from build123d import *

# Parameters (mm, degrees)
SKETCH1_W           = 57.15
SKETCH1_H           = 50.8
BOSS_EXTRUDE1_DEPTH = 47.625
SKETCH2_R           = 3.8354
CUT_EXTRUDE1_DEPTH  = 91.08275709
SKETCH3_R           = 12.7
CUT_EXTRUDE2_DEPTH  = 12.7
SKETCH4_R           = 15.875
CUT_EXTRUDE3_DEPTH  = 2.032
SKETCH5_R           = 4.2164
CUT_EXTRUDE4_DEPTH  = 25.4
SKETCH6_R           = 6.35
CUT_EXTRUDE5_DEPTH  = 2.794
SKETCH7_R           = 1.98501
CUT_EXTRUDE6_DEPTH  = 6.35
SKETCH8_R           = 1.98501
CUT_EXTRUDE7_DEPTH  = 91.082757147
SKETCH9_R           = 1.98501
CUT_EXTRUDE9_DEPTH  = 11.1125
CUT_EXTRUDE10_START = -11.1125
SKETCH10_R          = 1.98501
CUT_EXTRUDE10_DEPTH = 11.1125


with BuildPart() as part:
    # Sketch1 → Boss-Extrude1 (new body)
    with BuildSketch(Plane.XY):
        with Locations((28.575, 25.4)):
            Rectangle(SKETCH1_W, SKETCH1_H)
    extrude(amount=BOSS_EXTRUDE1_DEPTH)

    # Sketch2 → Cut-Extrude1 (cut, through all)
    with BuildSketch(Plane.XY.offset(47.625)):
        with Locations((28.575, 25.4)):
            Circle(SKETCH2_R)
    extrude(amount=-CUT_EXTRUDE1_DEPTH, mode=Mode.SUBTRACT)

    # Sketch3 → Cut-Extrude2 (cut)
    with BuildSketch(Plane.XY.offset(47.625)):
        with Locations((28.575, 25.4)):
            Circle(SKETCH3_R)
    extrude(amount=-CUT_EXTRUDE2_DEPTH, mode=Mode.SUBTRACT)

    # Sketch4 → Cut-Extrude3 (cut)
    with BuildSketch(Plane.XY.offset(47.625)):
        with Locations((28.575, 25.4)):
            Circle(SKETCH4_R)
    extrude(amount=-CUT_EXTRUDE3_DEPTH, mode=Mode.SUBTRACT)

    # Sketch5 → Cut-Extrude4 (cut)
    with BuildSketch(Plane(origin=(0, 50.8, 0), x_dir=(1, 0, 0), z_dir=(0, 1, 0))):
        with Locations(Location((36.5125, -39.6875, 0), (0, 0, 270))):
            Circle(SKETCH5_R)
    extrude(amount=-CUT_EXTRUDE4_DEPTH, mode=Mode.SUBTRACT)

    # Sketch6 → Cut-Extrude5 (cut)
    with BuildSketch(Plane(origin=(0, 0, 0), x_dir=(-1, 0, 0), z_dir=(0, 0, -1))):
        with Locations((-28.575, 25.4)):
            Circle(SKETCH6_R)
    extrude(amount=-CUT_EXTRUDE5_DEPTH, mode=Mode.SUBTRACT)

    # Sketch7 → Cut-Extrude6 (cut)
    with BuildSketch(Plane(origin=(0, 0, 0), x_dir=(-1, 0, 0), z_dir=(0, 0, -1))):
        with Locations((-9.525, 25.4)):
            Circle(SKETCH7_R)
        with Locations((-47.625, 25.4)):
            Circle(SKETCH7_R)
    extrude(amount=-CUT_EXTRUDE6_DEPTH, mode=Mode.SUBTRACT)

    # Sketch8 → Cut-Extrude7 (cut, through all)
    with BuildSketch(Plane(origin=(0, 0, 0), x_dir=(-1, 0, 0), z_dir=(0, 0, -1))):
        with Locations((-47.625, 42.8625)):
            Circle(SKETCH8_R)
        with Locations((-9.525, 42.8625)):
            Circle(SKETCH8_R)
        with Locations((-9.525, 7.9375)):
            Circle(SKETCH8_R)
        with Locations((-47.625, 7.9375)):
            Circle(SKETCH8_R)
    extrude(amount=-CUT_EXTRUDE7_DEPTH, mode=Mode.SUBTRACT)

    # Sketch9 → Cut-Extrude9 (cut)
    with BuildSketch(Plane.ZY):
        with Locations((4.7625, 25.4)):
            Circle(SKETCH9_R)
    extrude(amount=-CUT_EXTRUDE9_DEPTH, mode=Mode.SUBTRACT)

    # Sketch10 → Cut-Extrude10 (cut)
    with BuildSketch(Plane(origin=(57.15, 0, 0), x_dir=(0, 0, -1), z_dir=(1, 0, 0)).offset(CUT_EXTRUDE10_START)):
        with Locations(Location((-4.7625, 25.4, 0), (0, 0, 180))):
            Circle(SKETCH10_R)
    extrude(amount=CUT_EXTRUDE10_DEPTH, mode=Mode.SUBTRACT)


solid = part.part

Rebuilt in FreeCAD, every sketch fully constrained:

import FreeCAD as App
import Part
import Sketcher

V = App.Vector
Q = App.Units.Quantity

doc = App.newDocument("Part")
body = doc.addObject("PartDesign::Body", "Body")

sketch1 = doc.addObject("Sketcher::SketchObject", "Sketch")
body.addObject(sketch1)
sketch1.AttachmentSupport = (doc.XY_Plane, [""])
sketch1.MapMode = "FlatFace"
sketch1.addGeometry(Part.LineSegment(V(0, 50.8, 0), V(0, 0, 0)), False)
sketch1.addGeometry(Part.LineSegment(V(0, 0, 0), V(57.15, 0, 0)), False)
sketch1.addGeometry(Part.LineSegment(V(57.15, 0, 0), V(57.15, 50.8, 0)), False)
sketch1.addGeometry(Part.LineSegment(V(57.15, 50.8, 0), V(0, 50.8, 0)), False)
sketch1.addConstraint(Sketcher.Constraint("Coincident", 0, 2, 1, 1))
sketch1.addConstraint(Sketcher.Constraint("Coincident", 1, 2, 2, 1))
sketch1.addConstraint(Sketcher.Constraint("Coincident", 2, 2, 3, 1))
sketch1.addConstraint(Sketcher.Constraint("Coincident", 3, 2, 0, 1))
sketch1.addConstraint(Sketcher.Constraint("Vertical", 0))
sketch1.addConstraint(Sketcher.Constraint("Horizontal", 1))
sketch1.addConstraint(Sketcher.Constraint("Vertical", 2))
sketch1.addConstraint(Sketcher.Constraint("Horizontal", 3))
sketch1.addConstraint(Sketcher.Constraint("Coincident", 0, 2, -1, 1))
sketch1.addConstraint(Sketcher.Constraint("DistanceY", 0, 2, 0, 1, Q("2 in")))
sketch1.addConstraint(Sketcher.Constraint("DistanceX", 1, 1, 1, 2, Q("2.25 in")))
pad1 = doc.addObject("PartDesign::Pad", "Pad")
body.addObject(pad1)
pad1.Profile = sketch1
pad1.Length = Q("1.875 in")

sketch2 = doc.addObject("Sketcher::SketchObject", "Sketch001")
body.addObject(sketch2)
sketch2.AttachmentSupport = (doc.XY_Plane, [""])
sketch2.MapMode = "FlatFace"
sketch2.AttachmentOffset = App.Placement(V(0, 0, 1.875 * 25.4), App.Rotation())
sketch2.addGeometry(Part.Circle(V(28.575, 25.4, 0), V(0, 0, 1), 3.8354), False)
sketch2.addConstraint(Sketcher.Constraint("Diameter", 0, Q("0.302 in")))
sketch2.addConstraint(Sketcher.Constraint("DistanceY", -1, 1, 0, 3, Q("1 in")))
sketch2.addConstraint(Sketcher.Constraint("DistanceX", -1, 1, 0, 3, Q("1.125 in")))
pocket1 = doc.addObject("PartDesign::Pocket", "Pocket")
body.addObject(pocket1)
pocket1.Profile = sketch2
pocket1.Type = "ThroughAll"

sketch3 = doc.addObject("Sketcher::SketchObject", "Sketch002")
body.addObject(sketch3)
sketch3.AttachmentSupport = (doc.XY_Plane, [""])
sketch3.MapMode = "FlatFace"
sketch3.AttachmentOffset = App.Placement(V(0, 0, 1.875 * 25.4), App.Rotation())
sketch3.addGeometry(Part.Circle(V(28.575, 25.4, 0), V(0, 0, 1), 12.7), False)
sketch3.addConstraint(Sketcher.Constraint("Diameter", 0, Q("1 in")))
sketch3.addConstraint(Sketcher.Constraint("DistanceY", -1, 1, 0, 3, Q("1 in")))
sketch3.addConstraint(Sketcher.Constraint("DistanceX", -1, 1, 0, 3, Q("1.125 in")))
pocket2 = doc.addObject("PartDesign::Pocket", "Pocket001")
body.addObject(pocket2)
pocket2.Profile = sketch3
pocket2.Length = Q("0.5 in")

sketch4 = doc.addObject("Sketcher::SketchObject", "Sketch003")
body.addObject(sketch4)
sketch4.AttachmentSupport = (doc.XY_Plane, [""])
sketch4.MapMode = "FlatFace"
sketch4.AttachmentOffset = App.Placement(V(0, 0, 1.875 * 25.4), App.Rotation())
sketch4.addGeometry(Part.Circle(V(28.575, 25.4, 0), V(0, 0, 1), 15.875), False)
sketch4.addConstraint(Sketcher.Constraint("Diameter", 0, Q("1.25 in")))
sketch4.addConstraint(Sketcher.Constraint("DistanceY", -1, 1, 0, 3, Q("1 in")))
sketch4.addConstraint(Sketcher.Constraint("DistanceX", -1, 1, 0, 3, Q("1.125 in")))
pocket3 = doc.addObject("PartDesign::Pocket", "Pocket002")
body.addObject(pocket3)
pocket3.Profile = sketch4
pocket3.Length = Q("0.08 in")

sketch5 = doc.addObject("Sketcher::SketchObject", "Sketch004")
body.addObject(sketch5)
sketch5.AttachmentSupport = (doc.XZ_Plane, [""])
sketch5.MapMode = "FlatFace"
sketch5.AttachmentOffset = App.Placement(V(0, 0, -2 * 25.4), App.Rotation())
sketch5.addGeometry(Part.Circle(V(36.5125, 39.6875, 0), V(0, 0, 1), 4.2164), False)
sketch5.addConstraint(Sketcher.Constraint("Diameter", 0, Q("0.332 in")))
sketch5.addConstraint(Sketcher.Constraint("DistanceX", -1, 1, 0, 3, Q("1.4375 in")))
sketch5.addConstraint(Sketcher.Constraint("DistanceY", -1, 1, 0, 3, Q("1.5625 in")))
pocket4 = doc.addObject("PartDesign::Pocket", "Pocket003")
body.addObject(pocket4)
pocket4.Profile = sketch5
pocket4.Length = Q("1 in")
pocket4.Reversed = True

sketch6 = doc.addObject("Sketcher::SketchObject", "Sketch005")
body.addObject(sketch6)
sketch6.AttachmentSupport = (doc.XY_Plane, [""])
sketch6.MapMode = "FlatFace"
sketch6.addGeometry(Part.Circle(V(28.575, 25.4, 0), V(0, 0, 1), 6.35), False)
sketch6.addConstraint(Sketcher.Constraint("Diameter", 0, Q("0.5 in")))
sketch6.addConstraint(Sketcher.Constraint("DistanceY", -1, 1, 0, 3, Q("1 in")))
sketch6.addConstraint(Sketcher.Constraint("DistanceX", -1, 1, 0, 3, Q("1.125 in")))
pocket5 = doc.addObject("PartDesign::Pocket", "Pocket004")
body.addObject(pocket5)
pocket5.Profile = sketch6
pocket5.Length = Q("0.11 in")
pocket5.Reversed = True

sketch7 = doc.addObject("Sketcher::SketchObject", "Sketch006")
body.addObject(sketch7)
sketch7.AttachmentSupport = (doc.XY_Plane, [""])
sketch7.MapMode = "FlatFace"
sketch7.addGeometry(Part.Circle(V(9.525, 25.4, 0), V(0, 0, 1), 1.98501), False)
sketch7.addGeometry(Part.Circle(V(47.625, 25.4, 0), V(0, 0, 1), 1.98501), False)
sketch7.addConstraint(Sketcher.Constraint("Equal", 0, 1))
sketch7.addConstraint(Sketcher.Constraint("Horizontal", 0, 3, 1, 3))
sketch7.addConstraint(Sketcher.Constraint("DistanceY", -1, 1, 0, 3, Q("1 in")))
sketch7.addConstraint(Sketcher.Constraint("Diameter", 0, Q("0.1563 in")))
sketch7.addConstraint(Sketcher.Constraint("DistanceX", 0, 3, 1, 3, Q("1.5 in")))
sketch7.addConstraint(Sketcher.Constraint("DistanceX", -1, 1, 0, 3, Q("0.375 in")))
pocket6 = doc.addObject("PartDesign::Pocket", "Pocket005")
body.addObject(pocket6)
pocket6.Profile = sketch7
pocket6.Length = Q("0.25 in")
pocket6.Reversed = True

sketch8 = doc.addObject("Sketcher::SketchObject", "Sketch007")
body.addObject(sketch8)
sketch8.AttachmentSupport = (doc.XY_Plane, [""])
sketch8.MapMode = "FlatFace"
sketch8.addGeometry(Part.Circle(V(47.625, 42.8625, 0), V(0, 0, 1), 1.98501), False)
sketch8.addGeometry(Part.Circle(V(9.525, 42.8625, 0), V(0, 0, 1), 1.98501), False)
sketch8.addGeometry(Part.Circle(V(9.525, 7.9375, 0), V(0, 0, 1), 1.98501), False)
sketch8.addGeometry(Part.Circle(V(47.625, 7.9375, 0), V(0, 0, 1), 1.98501), False)
sketch8.addConstraint(Sketcher.Constraint("Equal", 0, 1))
sketch8.addConstraint(Sketcher.Constraint("Equal", 1, 2))
sketch8.addConstraint(Sketcher.Constraint("Equal", 2, 3))
sketch8.addConstraint(Sketcher.Constraint("Horizontal", 0, 3, 1, 3))
sketch8.addConstraint(Sketcher.Constraint("Horizontal", 2, 3, 3, 3))
sketch8.addConstraint(Sketcher.Constraint("Vertical", 1, 3, 2, 3))
sketch8.addConstraint(Sketcher.Constraint("Vertical", 0, 3, 3, 3))
sketch8.addConstraint(Sketcher.Constraint("Diameter", 0, Q("0.1563 in")))
sketch8.addConstraint(Sketcher.Constraint("DistanceX", 1, 3, 0, 3, Q("1.5 in")))
sketch8.addConstraint(Sketcher.Constraint("DistanceX", -1, 1, 0, 3, Q("1.875 in")))
sketch8.addConstraint(Sketcher.Constraint("DistanceY", -1, 1, 0, 3, Q("1.6875 in")))
sketch8.addConstraint(Sketcher.Constraint("DistanceY", -1, 1, 2, 3, Q("0.3125 in")))
pocket7 = doc.addObject("PartDesign::Pocket", "Pocket006")
body.addObject(pocket7)
pocket7.Profile = sketch8
pocket7.Type = "ThroughAll"
pocket7.Reversed = True

sketch9 = doc.addObject("Sketcher::SketchObject", "Sketch008")
body.addObject(sketch9)
sketch9.AttachmentSupport = (doc.YZ_Plane, [""])
sketch9.MapMode = "FlatFace"
sketch9.addGeometry(Part.Circle(V(25.4, 4.7625, 0), V(0, 0, 1), 1.98501), False)
sketch9.addConstraint(Sketcher.Constraint("DistanceX", -1, 1, 0, 3, Q("1 in")))
sketch9.addConstraint(Sketcher.Constraint("Diameter", 0, Q("0.1563 in")))
sketch9.addConstraint(Sketcher.Constraint("DistanceY", -1, 1, 0, 3, Q("0.1875 in")))
pocket8 = doc.addObject("PartDesign::Pocket", "Pocket007")
body.addObject(pocket8)
pocket8.Profile = sketch9
pocket8.Length = Q("0.4375 in")
pocket8.Reversed = True

sketch10 = doc.addObject("Sketcher::SketchObject", "Sketch009")
body.addObject(sketch10)
sketch10.AttachmentSupport = (doc.YZ_Plane, [""])
sketch10.MapMode = "FlatFace"
sketch10.AttachmentOffset = App.Placement(V(0, 0, 1.8125 * 25.4), App.Rotation())
sketch10.addGeometry(Part.Circle(V(25.4, 4.7625, 0), V(0, 0, 1), 1.98501), False)
sketch10.addConstraint(Sketcher.Constraint("DistanceX", -1, 1, 0, 3, Q("1 in")))
sketch10.addConstraint(Sketcher.Constraint("Diameter", 0, Q("0.1563 in")))
sketch10.addConstraint(Sketcher.Constraint("DistanceY", -1, 1, 0, 3, Q("0.1875 in")))
pocket9 = doc.addObject("PartDesign::Pocket", "Pocket008")
body.addObject(pocket9)
pocket9.Profile = sketch10
pocket9.Length = Q("0.4375 in")
pocket9.Reversed = True

doc.recompute()
